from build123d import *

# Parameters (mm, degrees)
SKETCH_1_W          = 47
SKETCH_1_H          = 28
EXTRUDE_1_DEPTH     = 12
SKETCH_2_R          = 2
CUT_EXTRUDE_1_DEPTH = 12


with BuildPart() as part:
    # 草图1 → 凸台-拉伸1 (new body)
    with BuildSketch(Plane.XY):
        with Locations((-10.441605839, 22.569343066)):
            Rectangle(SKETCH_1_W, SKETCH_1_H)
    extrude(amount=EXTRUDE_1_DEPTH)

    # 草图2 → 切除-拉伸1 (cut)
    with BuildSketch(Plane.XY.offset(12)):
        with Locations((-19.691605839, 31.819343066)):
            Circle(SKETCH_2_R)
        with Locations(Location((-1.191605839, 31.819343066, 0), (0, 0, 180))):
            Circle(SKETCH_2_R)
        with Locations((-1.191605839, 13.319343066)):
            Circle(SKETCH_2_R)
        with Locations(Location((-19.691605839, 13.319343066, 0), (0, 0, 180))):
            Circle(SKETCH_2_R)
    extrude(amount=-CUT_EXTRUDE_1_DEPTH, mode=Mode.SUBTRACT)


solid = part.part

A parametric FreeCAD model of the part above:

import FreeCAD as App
import Part
import Sketcher

V = App.Vector
Q = App.Units.Quantity

doc = App.newDocument("Part")
body = doc.addObject("PartDesign::Body", "Body")

# Sketch on XY plane
sketch1 = doc.addObject("Sketcher::SketchObject", "Sketch")
body.addObject(sketch1)
sketch1.AttachmentSupport = (doc.XY_Plane, [""])
sketch1.MapMode = "FlatFace"
sketch1.addGeometry(Part.LineSegment(V(-34, 37, 0), V(-34, 9, 0)), False)
sketch1.addGeometry(Part.LineSegment(V(-34, 9, 0), V(13, 9, 0)), False)
sketch1.addGeometry(Part.LineSegment(V(13, 9, 0), V(13, 37, 0)), False)
sketch1.addGeometry(Part.LineSegment(V(13, 37, 0), V(-34, 37, 0)), False)
sketch1.addConstraint(Sketcher.Constraint("Coincident", 0, 2, 1, 1))
sketch1.addConstraint(Sketcher.Constraint("Coincident", 1, 2, 2, 1))
sketch1.addConstraint(Sketcher.Constraint("Coincident", 2, 2, 3, 1))
sketch1.addConstraint(Sketcher.Constraint("Coincident", 3, 2, 0, 1))
sketch1.addConstraint(Sketcher.Constraint("Vertical", 0))
sketch1.addConstraint(Sketcher.Constraint("Horizontal", 1))
sketch1.addConstraint(Sketcher.Constraint("Vertical", 2))
sketch1.addConstraint(Sketcher.Constraint("Horizontal", 3))
sketch1.addConstraint(Sketcher.Constraint("DistanceX", 1, 1, 1, 2, Q("47 mm")))
sketch1.addConstraint(Sketcher.Constraint("DistanceY", 0, 2, 0, 1, Q("28 mm")))
sketch1.addConstraint(Sketcher.Constraint("DistanceX", 0, 2, -1, 1, Q("33.941606 mm")))
sketch1.addConstraint(Sketcher.Constraint("DistanceY", -1, 1, 0, 2, Q("8.569343 mm")))
pad1 = doc.addObject("PartDesign::Pad", "Pad")
body.addObject(pad1)
pad1.Profile = sketch1
pad1.Length = 12

# Sketch on XY plane
sketch2 = doc.addObject("Sketcher::SketchObject", "Sketch001")
body.addObject(sketch2)
sketch2.AttachmentSupport = (doc.XY_Plane, [""])
sketch2.MapMode = "FlatFace"
sketch2.AttachmentOffset = App.Placement(V(0, 0, 12), App.Rotation())
sketch2.addGeometry(Part.Circle(V(-19.7, 31.8, 0), V(0, 0, 1), 2), False)
sketch2.addGeometry(Part.Circle(V(-1.2, 31.8, 0), V(0, 0, 1), 2), False)
sketch2.addGeometry(Part.Circle(V(-1.2, 13.3, 0), V(0, 0, 1), 2), False)
sketch2.addGeometry(Part.Circle(V(-19.7, 13.3, 0), V(0, 0, 1), 2), False)
sketch2.addConstraint(Sketcher.Constraint("Equal", 0, 1))
sketch2.addConstraint(Sketcher.Constraint("Equal", 1, 2))
sketch2.addConstraint(Sketcher.Constraint("Equal", 2, 3))
sketch2.addConstraint(Sketcher.Constraint("Horizontal", 0, 3, 1, 3))
sketch2.addConstraint(Sketcher.Constraint("Horizontal", 2, 3, 3, 3))
sketch2.addConstraint(Sketcher.Constraint("Vertical", 1, 3, 2, 3))
sketch2.addConstraint(Sketcher.Constraint("Vertical", 0, 3, 3, 3))
sketch2.addConstraint(Sketcher.Constraint("Diameter", 0, Q("4 mm")))
sketch2.addConstraint(Sketcher.Constraint("DistanceX", 0, 3, 1, 3, Q("18.5 mm")))
sketch2.addConstraint(Sketcher.Constraint("DistanceY", 2, 3, 1, 3, Q("18.5 mm")))
sketch2.addConstraint(Sketcher.Constraint("DistanceX", 0, 3, -1, 1, Q("19.691606 mm")))
sketch2.addConstraint(Sketcher.Constraint("DistanceY", -1, 1, 0, 3, Q("31.819343 mm")))
pocket1 = doc.addObject("PartDesign::Pocket", "Pocket")
body.addObject(pocket1)
pocket1.Profile = sketch2
pocket1.Length = 12

doc.recompute()
